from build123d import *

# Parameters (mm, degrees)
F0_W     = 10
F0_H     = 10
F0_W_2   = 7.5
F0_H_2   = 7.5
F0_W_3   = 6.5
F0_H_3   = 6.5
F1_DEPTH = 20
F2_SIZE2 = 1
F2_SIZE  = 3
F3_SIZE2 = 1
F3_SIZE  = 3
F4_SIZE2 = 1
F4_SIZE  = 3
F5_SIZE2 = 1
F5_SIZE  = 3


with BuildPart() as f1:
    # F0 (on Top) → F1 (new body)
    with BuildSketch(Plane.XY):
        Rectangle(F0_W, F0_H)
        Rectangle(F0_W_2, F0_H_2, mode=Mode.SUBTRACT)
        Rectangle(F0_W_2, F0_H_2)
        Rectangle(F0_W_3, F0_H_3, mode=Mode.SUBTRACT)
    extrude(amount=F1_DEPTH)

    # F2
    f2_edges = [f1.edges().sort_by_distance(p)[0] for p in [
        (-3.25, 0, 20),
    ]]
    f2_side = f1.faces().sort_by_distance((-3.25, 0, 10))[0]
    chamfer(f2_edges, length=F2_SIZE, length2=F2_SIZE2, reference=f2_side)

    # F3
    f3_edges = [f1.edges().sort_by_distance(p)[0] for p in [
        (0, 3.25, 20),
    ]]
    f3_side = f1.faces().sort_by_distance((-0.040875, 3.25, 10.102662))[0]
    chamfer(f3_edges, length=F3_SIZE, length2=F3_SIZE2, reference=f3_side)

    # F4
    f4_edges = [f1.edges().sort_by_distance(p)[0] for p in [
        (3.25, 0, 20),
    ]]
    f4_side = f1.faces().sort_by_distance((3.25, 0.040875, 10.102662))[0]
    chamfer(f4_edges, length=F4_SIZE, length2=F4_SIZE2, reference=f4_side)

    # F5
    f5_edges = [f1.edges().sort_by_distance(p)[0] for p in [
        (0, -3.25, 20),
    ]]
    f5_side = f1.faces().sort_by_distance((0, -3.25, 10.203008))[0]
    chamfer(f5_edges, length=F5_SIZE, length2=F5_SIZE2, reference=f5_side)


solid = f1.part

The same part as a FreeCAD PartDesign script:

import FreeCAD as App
import Part
import Sketcher


def edges_at(feature, points):
    """Names of the edges that pass closest to the given points."""
    edges = feature.Shape.Edges
    near = lambda p: min(range(len(edges)), key=lambda i: edges[i].distToShape(Part.Vertex(*p))[0])
    return sorted({f"Edge{near(p) + 1}" for p in points})


def add_polygon(sketch, points):
    """Adds a closed chain of lines whose ends are joined by coincident constraints."""
    first, n = sketch.GeometryCount, len(points)
    for a, b in zip(points, points[1:] + points[:1]):
        sketch.addGeometry(Part.LineSegment(App.Vector(*a, 0), App.Vector(*b, 0)), False)
    for i in range(n):
        sketch.addConstraint(Sketcher.Constraint("Coincident", first + i, 2, first + (i + 1) % n, 1))

doc = App.newDocument("Part")
body = doc.addObject("PartDesign::Body", "Body")

# Sketch on XY plane
sketch1 = doc.addObject("Sketcher::SketchObject", "Sketch")
body.addObject(sketch1)
sketch1.AttachmentSupport = (doc.XY_Plane, [""])
sketch1.MapMode = "FlatFace"
add_polygon(sketch1, [(-5, 5), (-5, -5), (5, -5), (5, 5)])  # lines 0-3
add_polygon(sketch1, [(3, -3), (-3, -3), (-3, 3), (3, 3)])  # lines 4-7
sketch1.addConstraint([
    Sketcher.Constraint("Vertical", 0),
    Sketcher.Constraint("Horizontal", 1),
    Sketcher.Constraint("Vertical", 2),
    Sketcher.Constraint("Horizontal", 3),
    Sketcher.Constraint("Horizontal", 4),
    Sketcher.Constraint("Vertical", 5),
    Sketcher.Constraint("Horizontal", 6),
    Sketcher.Constraint("Vertical", 7),
    Sketcher.Constraint("Symmetric", 0, 2, 2, 2, -1, 1),
    Sketcher.Constraint("Symmetric", 4, 2, 6, 2, -1, 1),
    Sketcher.Constraint("Equal", 3, 0),
    Sketcher.Constraint("Equal", 6, 5),
    Sketcher.Constraint("DistanceX", 1, 1, 1, 2, 10.0),
    Sketcher.Constraint("DistanceX", 4, 2, 4, 1, 6.5),
])
pad1 = doc.addObject("PartDesign::Pad", "Pad")
body.addObject(pad1)
pad1.Profile = sketch1
pad1.Length = 20
doc.recompute()

chamfer = doc.addObject("PartDesign::Chamfer", "Chamfer")
body.addObject(chamfer)
chamfer.Base = (pad1, edges_at(pad1, [(-3.25, 0, 20)]))
chamfer.ChamferType = "Two distances"
chamfer.Size = 3
chamfer.Size2 = 1
doc.recompute()

chamfer2 = doc.addObject("PartDesign::Chamfer", "Chamfer001")
body.addObject(chamfer2)
chamfer2.Base = (chamfer, edges_at(chamfer, [(-0.5, 3.25, 20)]))
chamfer2.ChamferType = "Two distances"
chamfer2.Size = 3
chamfer2.Size2 = 1
chamfer2.FlipDirection = True
doc.recompute()

chamfer3 = doc.addObject("PartDesign::Chamfer", "Chamfer002")
body.addObject(chamfer3)
chamfer3.Base = (chamfer2, edges_at(chamfer2, [(3.25, 0.5, 20)]))
chamfer3.ChamferType = "Two distances"
chamfer3.Size = 3
chamfer3.Size2 = 1
chamfer3.FlipDirection = True
doc.recompute()

chamfer4 = doc.addObject("PartDesign::Chamfer", "Chamfer003")
body.addObject(chamfer4)
chamfer4.Base = (chamfer3, edges_at(chamfer3, [(0, -3.25, 20)]))
chamfer4.ChamferType = "Two distances"
chamfer4.Size = 3
chamfer4.Size2 = 1
chamfer4.FlipDirection = True

doc.recompute()
